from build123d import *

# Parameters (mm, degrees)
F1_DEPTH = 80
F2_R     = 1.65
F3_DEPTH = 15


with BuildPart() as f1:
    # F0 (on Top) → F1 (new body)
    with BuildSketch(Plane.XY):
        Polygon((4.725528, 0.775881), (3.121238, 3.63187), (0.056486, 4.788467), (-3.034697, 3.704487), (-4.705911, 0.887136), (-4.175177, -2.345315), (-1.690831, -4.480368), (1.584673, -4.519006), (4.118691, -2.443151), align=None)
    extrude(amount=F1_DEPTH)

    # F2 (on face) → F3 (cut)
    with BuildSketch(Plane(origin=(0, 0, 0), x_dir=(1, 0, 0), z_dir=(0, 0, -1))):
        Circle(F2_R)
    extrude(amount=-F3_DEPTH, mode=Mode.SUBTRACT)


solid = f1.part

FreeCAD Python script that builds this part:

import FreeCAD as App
import Part
import Sketcher
from FreeCAD import Vector


def add_polygon(sketch, points):
    """Adds a closed chain of lines whose ends are joined by coincident constraints."""
    first, n = sketch.GeometryCount, len(points)
    for a, b in zip(points, points[1:] + points[:1]):
        sketch.addGeometry(Part.LineSegment(App.Vector(*a, 0), App.Vector(*b, 0)), False)
    for i in range(n):
        sketch.addConstraint(Sketcher.Constraint("Coincident", first + i, 2, first + (i + 1) % n, 1))

doc = App.newDocument("Part")
body = doc.addObject("PartDesign::Body", "Body")

sketch1 = body.newObject("Sketcher::SketchObject", "Sketch")
sketch1.AttachmentSupport = (doc.getObject("XY_Plane"), [""])
sketch1.MapMode = "FlatFace"
add_polygon(sketch1, [(4.7, 0.8), (3.1, 3.6), (0.1, 4.8), (-3, 3.7), (-4.7, 0.9), (-4.2, -2.3), (-1.7, -4.5), (1.6, -4.5), (4.1, -2.4)])
sketch1.addConstraint([
    Sketcher.Constraint("Equal", 0, 1),
    Sketcher.Constraint("Equal", 1, 2),
    Sketcher.Constraint("Equal", 2, 3),
    Sketcher.Constraint("Equal", 3, 4),
    Sketcher.Constraint("Equal", 4, 5),
    Sketcher.Constraint("Equal", 5, 6),
    Sketcher.Constraint("Equal", 6, 7),
    Sketcher.Constraint("Equal", 7, 8),
    Sketcher.Constraint("DistanceY", 4, 2, 2, 2, 6.049802),
    Sketcher.Constraint("Distance", 0, 3.275732),
    Sketcher.Constraint("DistanceX", -1, 1, 0, 2, 3.121238),
    Sketcher.Constraint("DistanceY", -1, 1, 0, 2, 3.63187),
    Sketcher.Constraint("DistanceX", 3, 2, -1, 1, 4.705911),
    Sketcher.Constraint("DistanceX", 5, 2, -1, 1, 1.690831),
    Sketcher.Constraint("DistanceY", 5, 2, -1, 1, 4.480368),
    Sketcher.Constraint("DistanceX", -1, 1, 7, 2, 4.118691),
    Sketcher.Constraint("DistanceY", 7, 2, -1, 1, 2.443151),
    Sketcher.Constraint("DistanceX", 1, 2, 0, 2, 3.064752),
])
pad1 = body.newObject("PartDesign::Pad", "Pad")
pad1.Profile = sketch1
pad1.Length = 80

sketch2 = body.newObject("Sketcher::SketchObject", "Sketch001")
sketch2.AttachmentSupport = (doc.getObject("XY_Plane"), [""])
sketch2.MapMode = "FlatFace"
sketch2.addGeometry(Part.Circle(Vector(0, 0, 0), Vector(0, 0, 1), 1.6), False)
sketch2.addConstraint([
    Sketcher.Constraint("Coincident", 0, 3, -1, 1),
    Sketcher.Constraint("Diameter", 0, 3.3),
])
pocket1 = body.newObject("PartDesign::Pocket", "Pocket")
pocket1.Profile = sketch2
pocket1.Length = 15
pocket1.Reversed = True

doc.recompute()
